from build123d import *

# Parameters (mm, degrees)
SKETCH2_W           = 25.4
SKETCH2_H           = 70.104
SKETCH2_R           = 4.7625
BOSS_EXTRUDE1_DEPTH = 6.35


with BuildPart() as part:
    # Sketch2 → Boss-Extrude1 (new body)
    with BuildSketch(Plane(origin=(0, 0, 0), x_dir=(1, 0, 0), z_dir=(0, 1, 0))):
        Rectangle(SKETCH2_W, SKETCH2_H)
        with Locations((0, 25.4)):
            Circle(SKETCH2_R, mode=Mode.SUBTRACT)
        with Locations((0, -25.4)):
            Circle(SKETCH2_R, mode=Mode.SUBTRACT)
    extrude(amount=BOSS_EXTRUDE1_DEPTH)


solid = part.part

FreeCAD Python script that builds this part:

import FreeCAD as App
import Part
import Sketcher

V = App.Vector
Q = App.Units.Quantity


def add_polygon(sketch, points):
    """Adds a closed chain of lines whose ends are joined by coincident constraints."""
    first, n = sketch.GeometryCount, len(points)
    for a, b in zip(points, points[1:] + points[:1]):
        sketch.addGeometry(Part.LineSegment(App.Vector(*a, 0), App.Vector(*b, 0)), False)
    for i in range(n):
        sketch.addConstraint(Sketcher.Constraint("Coincident", first + i, 2, first + (i + 1) % n, 1))

doc = App.newDocument("Part")
params = doc.addObject("Spreadsheet::Sheet", "Params")
for row, (alias, value) in enumerate([
    ("sketch1_width", "1 in"),
    ("sketch1_diameter", "0.375 in"),
    ("sketch1_height", "2.76 in"),
    ("pad1_length", "0.25 in"),
], start=1):
    params.set(f"A{row}", alias)
    params.set(f"B{row}", "=" + value)
    params.setAlias(f"B{row}", alias)

body = doc.addObject("PartDesign::Body", "Body")

# Sketch on XZ plane
sketch1 = body.newObject("Sketcher::SketchObject", "Sketch")
sketch1.AttachmentSupport = (doc.getObject("XZ_Plane"), [""])
sketch1.MapMode = "FlatFace"
add_polygon(sketch1, [(-12.7, -35.1), (-12.7, 35.1), (12.7, 35.1), (12.7, -35.1)])  # lines 0-3
sketch1.addGeometry(Part.Circle(V(0, 25.4, 0), V(0, 0, 1), 4.8), False)  # 4
sketch1.addGeometry(Part.Circle(V(0, -25.4, 0), V(0, 0, 1), 4.8), False)  # 5
sketch1.addConstraint([
    Sketcher.Constraint("Vertical", 0),
    Sketcher.Constraint("Horizontal", 1),
    Sketcher.Constraint("Vertical", 2),
    Sketcher.Constraint("Horizontal", 3),
    Sketcher.Constraint("Equal", 4, 5),
    Sketcher.Constraint("Symmetric", 4, 3, 5, 3, -1, 1),
    Sketcher.Constraint("Symmetric", 0, 2, 2, 2, -1, 1),
    Sketcher.Constraint("PointOnObject", 4, 3, -2),
    Sketcher.Constraint("DistanceX", 1, 1, 1, 2, Q("1 in")),
    Sketcher.Constraint("Diameter", 4, Q("0.375 in")),
    Sketcher.Constraint("DistanceY", -1, 1, 4, 3, Q("1 in")),
    Sketcher.Constraint("DistanceY", 0, 1, 0, 2, Q("2.76 in")),
])
sketch1.setExpression("Constraints[12]", "Params.sketch1_width")
sketch1.setExpression("Constraints[13]", "Params.sketch1_diameter")
sketch1.setExpression("Constraints[15]", "Params.sketch1_height")
pad1 = body.newObject("PartDesign::Pad", "Pad")
pad1.Profile = sketch1
pad1.setExpression("Length", "Params.pad1_length")
pad1.Reversed = True

doc.recompute()
